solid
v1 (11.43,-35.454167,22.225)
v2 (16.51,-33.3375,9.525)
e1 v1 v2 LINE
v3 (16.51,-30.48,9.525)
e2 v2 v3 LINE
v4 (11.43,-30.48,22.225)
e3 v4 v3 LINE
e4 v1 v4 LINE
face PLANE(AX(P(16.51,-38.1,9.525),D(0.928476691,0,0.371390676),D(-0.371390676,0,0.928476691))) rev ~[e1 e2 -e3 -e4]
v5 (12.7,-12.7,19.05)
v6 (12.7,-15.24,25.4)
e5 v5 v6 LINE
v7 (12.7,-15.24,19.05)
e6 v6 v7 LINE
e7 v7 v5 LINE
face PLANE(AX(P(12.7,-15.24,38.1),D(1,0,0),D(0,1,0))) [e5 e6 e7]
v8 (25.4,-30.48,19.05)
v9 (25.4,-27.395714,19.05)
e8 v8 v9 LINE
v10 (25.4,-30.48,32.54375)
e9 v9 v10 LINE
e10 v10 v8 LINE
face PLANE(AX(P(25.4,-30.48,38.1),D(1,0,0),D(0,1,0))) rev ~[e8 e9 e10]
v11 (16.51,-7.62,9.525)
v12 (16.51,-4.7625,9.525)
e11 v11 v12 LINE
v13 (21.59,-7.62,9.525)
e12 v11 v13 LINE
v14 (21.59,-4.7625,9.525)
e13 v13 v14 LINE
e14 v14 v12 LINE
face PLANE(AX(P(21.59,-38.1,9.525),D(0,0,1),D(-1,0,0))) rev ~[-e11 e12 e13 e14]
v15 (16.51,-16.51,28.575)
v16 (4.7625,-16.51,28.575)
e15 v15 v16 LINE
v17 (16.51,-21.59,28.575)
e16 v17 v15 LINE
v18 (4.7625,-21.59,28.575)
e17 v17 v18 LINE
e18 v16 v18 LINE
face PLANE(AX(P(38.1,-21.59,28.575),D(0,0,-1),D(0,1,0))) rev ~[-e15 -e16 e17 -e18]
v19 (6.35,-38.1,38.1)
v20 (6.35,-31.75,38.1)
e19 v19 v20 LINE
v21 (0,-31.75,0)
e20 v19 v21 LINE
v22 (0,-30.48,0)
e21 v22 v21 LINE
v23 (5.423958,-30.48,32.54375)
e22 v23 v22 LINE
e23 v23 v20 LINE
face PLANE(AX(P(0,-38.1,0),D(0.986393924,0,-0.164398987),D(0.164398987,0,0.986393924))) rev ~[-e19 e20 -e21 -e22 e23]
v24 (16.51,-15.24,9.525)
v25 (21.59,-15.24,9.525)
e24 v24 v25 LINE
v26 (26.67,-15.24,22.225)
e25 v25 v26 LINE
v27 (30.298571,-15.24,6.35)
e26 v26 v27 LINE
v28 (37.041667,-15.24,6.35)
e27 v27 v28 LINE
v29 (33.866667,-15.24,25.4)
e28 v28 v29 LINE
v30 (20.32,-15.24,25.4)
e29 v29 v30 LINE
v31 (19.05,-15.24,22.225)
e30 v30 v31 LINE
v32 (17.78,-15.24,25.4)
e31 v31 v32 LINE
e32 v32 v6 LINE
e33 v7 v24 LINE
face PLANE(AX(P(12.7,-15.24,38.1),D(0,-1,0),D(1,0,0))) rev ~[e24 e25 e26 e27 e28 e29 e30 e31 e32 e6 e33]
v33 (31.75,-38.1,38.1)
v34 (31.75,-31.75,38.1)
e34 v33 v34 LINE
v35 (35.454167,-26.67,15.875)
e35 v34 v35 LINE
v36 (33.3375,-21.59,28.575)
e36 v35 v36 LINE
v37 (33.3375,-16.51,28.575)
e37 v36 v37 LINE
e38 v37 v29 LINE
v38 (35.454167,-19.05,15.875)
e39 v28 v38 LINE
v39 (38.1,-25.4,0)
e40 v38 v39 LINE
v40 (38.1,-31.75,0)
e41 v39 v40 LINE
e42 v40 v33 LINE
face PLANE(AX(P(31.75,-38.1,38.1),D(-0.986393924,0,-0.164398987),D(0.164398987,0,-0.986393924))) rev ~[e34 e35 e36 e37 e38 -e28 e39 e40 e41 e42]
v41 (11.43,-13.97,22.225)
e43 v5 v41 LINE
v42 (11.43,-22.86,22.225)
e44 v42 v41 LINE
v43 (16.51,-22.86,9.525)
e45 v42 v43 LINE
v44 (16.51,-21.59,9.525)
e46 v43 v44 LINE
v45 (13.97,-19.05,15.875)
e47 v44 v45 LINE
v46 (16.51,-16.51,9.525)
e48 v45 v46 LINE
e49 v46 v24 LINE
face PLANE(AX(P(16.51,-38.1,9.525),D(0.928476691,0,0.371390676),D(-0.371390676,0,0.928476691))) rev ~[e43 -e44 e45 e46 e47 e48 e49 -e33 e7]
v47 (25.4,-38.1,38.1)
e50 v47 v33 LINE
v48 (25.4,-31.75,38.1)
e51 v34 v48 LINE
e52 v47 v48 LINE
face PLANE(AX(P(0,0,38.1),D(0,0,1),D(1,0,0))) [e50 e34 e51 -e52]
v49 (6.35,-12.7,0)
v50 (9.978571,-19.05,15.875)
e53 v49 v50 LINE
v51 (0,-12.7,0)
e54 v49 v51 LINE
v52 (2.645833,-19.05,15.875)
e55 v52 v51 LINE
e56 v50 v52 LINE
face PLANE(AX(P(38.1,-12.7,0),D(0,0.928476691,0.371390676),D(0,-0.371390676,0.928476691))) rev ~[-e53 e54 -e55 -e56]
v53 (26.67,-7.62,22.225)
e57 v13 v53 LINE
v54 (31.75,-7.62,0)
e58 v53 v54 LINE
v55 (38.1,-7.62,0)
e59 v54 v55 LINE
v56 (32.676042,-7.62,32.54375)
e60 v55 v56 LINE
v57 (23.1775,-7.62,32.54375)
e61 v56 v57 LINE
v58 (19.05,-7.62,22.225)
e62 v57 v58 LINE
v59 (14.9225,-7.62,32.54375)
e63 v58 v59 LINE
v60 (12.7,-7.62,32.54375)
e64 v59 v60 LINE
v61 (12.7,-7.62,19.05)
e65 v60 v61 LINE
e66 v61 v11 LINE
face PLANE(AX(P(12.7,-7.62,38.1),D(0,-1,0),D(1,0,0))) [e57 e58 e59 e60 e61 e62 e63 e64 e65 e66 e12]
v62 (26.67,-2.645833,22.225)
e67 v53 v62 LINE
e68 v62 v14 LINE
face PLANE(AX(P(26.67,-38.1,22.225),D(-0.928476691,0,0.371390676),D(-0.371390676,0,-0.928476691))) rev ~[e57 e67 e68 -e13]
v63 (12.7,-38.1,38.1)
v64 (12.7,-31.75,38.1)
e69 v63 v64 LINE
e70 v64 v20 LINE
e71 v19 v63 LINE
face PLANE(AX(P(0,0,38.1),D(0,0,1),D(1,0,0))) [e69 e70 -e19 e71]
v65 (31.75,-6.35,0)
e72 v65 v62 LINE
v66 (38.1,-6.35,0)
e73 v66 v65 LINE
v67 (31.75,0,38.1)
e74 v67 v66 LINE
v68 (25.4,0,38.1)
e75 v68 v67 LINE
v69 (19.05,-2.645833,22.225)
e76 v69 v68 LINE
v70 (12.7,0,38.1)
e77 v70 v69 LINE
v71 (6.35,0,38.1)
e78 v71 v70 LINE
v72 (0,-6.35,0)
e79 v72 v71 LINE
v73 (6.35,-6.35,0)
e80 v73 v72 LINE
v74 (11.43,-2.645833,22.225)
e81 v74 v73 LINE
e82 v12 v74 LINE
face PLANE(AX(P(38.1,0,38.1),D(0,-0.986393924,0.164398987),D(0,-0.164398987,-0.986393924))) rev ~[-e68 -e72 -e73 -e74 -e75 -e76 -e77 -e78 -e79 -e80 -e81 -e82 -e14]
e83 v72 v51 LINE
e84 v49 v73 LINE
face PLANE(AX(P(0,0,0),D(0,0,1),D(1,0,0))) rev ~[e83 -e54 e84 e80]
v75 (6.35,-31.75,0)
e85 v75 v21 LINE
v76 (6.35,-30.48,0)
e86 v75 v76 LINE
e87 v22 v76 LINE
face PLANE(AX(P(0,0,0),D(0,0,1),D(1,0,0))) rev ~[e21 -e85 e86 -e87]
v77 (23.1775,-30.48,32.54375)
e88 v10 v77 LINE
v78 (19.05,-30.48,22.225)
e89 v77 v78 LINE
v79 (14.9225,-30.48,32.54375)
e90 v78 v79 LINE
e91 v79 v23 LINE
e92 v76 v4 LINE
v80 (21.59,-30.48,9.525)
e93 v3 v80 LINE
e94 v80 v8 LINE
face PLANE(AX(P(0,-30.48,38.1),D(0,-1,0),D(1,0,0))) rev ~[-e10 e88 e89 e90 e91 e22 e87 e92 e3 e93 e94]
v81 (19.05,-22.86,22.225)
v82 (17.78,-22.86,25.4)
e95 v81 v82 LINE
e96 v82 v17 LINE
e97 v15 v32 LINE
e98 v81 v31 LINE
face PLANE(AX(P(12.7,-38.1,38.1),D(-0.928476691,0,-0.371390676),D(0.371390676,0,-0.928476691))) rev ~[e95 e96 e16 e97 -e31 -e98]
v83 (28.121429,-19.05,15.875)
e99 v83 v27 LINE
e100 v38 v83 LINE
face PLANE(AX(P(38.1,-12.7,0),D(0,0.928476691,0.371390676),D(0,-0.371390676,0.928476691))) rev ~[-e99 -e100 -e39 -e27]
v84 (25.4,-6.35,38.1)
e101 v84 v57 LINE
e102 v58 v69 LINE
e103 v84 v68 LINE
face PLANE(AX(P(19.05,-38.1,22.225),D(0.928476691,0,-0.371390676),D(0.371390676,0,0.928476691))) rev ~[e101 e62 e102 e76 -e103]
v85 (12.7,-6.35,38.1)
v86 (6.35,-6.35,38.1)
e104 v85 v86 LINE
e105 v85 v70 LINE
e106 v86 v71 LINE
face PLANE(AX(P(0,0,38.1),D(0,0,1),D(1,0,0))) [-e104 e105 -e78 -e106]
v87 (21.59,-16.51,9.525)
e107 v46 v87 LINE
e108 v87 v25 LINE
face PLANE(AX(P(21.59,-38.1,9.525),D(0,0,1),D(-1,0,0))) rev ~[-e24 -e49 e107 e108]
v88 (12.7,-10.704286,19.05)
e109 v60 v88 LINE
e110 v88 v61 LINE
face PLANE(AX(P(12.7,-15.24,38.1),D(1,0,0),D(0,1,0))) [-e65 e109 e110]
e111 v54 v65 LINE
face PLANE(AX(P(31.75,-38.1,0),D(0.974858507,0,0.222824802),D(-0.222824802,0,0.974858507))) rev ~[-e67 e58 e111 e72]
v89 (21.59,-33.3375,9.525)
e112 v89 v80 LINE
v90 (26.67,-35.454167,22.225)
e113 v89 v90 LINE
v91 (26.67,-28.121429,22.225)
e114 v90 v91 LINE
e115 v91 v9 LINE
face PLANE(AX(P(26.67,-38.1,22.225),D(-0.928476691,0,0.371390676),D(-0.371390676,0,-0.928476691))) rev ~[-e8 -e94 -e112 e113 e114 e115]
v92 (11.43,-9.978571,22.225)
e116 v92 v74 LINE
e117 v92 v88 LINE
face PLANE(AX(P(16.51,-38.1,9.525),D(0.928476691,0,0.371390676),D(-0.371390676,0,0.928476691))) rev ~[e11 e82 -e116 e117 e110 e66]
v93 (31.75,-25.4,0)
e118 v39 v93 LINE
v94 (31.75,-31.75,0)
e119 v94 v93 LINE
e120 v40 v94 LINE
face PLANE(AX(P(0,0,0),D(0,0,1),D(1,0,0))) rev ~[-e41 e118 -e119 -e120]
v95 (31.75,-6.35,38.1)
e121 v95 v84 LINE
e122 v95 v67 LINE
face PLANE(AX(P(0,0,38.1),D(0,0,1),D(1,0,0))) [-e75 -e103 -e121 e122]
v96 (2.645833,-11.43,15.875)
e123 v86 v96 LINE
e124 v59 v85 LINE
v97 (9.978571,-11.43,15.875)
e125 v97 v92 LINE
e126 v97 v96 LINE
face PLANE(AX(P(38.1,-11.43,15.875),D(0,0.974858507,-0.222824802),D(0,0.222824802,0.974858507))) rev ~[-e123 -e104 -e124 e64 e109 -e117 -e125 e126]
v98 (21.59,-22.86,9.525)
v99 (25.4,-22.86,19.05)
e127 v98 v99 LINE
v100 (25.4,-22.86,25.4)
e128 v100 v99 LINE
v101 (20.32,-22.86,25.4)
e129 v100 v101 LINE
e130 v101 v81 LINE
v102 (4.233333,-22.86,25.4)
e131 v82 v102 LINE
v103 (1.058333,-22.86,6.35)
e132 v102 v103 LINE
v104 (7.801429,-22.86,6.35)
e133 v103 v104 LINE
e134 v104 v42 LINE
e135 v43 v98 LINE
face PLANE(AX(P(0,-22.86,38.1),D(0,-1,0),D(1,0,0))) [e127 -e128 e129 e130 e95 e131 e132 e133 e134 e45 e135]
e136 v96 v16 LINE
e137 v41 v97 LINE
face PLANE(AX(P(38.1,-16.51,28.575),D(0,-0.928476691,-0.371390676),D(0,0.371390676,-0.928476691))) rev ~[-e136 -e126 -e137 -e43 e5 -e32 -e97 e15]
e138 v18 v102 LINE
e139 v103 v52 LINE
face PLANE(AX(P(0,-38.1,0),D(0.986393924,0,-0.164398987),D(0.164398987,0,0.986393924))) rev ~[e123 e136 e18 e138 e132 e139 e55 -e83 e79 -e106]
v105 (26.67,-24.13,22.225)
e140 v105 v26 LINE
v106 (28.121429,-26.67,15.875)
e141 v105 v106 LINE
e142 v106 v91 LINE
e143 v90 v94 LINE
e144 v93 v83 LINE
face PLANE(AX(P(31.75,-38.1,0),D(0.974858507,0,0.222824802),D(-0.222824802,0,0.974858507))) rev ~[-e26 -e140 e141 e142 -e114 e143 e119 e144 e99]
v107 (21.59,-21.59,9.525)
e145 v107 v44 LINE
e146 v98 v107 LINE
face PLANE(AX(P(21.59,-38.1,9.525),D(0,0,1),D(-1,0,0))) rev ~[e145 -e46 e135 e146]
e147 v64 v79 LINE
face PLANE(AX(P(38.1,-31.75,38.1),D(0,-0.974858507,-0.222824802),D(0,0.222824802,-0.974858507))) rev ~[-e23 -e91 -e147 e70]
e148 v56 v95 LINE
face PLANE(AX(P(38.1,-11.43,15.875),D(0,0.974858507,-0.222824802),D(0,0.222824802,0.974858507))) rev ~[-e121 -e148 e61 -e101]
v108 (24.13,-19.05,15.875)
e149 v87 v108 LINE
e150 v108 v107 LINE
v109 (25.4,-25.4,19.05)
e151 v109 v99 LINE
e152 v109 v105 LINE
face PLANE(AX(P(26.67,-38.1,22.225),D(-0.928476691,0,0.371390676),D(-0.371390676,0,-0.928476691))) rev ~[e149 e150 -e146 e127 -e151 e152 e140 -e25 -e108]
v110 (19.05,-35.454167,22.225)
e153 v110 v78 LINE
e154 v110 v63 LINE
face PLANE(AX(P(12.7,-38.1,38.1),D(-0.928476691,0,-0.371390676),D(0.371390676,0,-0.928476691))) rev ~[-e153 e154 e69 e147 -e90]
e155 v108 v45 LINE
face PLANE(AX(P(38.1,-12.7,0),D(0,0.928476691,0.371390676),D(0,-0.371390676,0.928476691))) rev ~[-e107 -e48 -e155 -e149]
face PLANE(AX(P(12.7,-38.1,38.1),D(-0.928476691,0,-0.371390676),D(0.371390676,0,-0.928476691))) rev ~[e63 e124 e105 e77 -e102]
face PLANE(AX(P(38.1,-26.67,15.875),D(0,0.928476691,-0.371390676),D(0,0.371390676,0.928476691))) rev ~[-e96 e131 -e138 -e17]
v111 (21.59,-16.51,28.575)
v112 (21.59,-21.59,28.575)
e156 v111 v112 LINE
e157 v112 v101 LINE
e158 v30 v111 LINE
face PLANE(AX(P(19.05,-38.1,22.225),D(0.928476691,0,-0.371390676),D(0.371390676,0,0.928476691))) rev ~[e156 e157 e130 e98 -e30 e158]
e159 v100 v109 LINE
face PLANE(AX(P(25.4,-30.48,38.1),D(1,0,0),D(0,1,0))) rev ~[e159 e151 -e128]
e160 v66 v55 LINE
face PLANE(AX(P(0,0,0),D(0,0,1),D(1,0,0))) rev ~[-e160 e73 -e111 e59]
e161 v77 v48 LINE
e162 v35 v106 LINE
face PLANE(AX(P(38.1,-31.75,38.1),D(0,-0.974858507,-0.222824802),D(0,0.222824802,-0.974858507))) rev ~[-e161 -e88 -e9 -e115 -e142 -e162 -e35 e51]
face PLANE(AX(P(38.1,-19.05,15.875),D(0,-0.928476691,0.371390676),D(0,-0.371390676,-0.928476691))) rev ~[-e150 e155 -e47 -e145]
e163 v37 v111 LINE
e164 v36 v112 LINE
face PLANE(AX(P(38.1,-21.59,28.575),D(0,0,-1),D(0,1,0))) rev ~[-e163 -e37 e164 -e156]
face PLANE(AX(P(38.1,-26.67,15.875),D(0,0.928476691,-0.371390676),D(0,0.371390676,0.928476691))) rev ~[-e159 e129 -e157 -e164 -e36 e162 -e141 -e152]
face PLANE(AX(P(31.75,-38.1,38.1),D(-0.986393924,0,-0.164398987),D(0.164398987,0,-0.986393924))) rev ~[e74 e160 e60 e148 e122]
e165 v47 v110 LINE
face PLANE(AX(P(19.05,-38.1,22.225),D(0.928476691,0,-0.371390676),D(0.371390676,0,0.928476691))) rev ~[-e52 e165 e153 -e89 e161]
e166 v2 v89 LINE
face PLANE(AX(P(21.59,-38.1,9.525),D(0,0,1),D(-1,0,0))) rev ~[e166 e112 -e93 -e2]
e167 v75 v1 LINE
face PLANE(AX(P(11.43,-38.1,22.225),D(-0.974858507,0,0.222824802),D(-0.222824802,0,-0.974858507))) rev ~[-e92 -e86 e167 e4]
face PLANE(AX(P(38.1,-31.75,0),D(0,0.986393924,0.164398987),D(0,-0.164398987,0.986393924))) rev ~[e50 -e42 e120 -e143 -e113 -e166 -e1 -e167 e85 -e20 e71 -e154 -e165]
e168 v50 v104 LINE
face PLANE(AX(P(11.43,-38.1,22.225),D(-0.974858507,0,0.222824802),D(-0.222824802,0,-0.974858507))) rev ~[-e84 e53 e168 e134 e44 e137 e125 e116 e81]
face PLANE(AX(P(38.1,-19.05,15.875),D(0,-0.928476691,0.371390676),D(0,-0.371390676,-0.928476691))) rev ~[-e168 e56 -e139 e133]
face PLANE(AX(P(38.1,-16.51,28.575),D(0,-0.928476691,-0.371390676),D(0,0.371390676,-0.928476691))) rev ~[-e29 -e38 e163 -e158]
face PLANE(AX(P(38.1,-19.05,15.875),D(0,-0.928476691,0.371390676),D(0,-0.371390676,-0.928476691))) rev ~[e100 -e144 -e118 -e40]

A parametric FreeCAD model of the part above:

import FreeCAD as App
import Part
import Sketcher
from FreeCAD import Vector
Q = App.Units.Quantity

doc = App.newDocument("Part")
body = doc.addObject("PartDesign::Body", "Body")

# Sketch on XZ plane
sketch1 = doc.addObject("Sketcher::SketchObject", "Sketch")
body.addObject(sketch1)
sketch1.AttachmentSupport = (doc.XZ_Plane, [""])
sketch1.MapMode = "FlatFace"
sketch1.addGeometry([
    Part.LineSegment(Vector(0, 38, 0), Vector(0, 0, 0)),
    Part.LineSegment(Vector(0, 0, 0), Vector(38, 0, 0)),
    Part.LineSegment(Vector(38, 0, 0), Vector(38, 38, 0)),
    Part.LineSegment(Vector(38, 38, 0), Vector(0, 38, 0)),
], False)
sketch1.addConstraint([
    Sketcher.Constraint("Coincident", 0, 2, 1, 1),
    Sketcher.Constraint("Coincident", 1, 2, 2, 1),
    Sketcher.Constraint("Coincident", 2, 2, 3, 1),
    Sketcher.Constraint("Coincident", 3, 2, 0, 1),
    Sketcher.Constraint("Vertical", 0),
    Sketcher.Constraint("Horizontal", 1),
    Sketcher.Constraint("Vertical", 2),
    Sketcher.Constraint("Horizontal", 3),
    Sketcher.Constraint("Coincident", 0, 2, -1, 1),
    Sketcher.Constraint("Equal", 3, 0),
    Sketcher.Constraint("DistanceX", 1, 1, 1, 2, Q("1.5 in")),
])
pad1 = doc.addObject("PartDesign::Pad", "Pad")
body.addObject(pad1)
pad1.Profile = sketch1
pad1.Length = Q("1.5 in")

# Sketch on YZ plane
sketch2 = doc.addObject("Sketcher::SketchObject", "Sketch001")
body.addObject(sketch2)
sketch2.AttachmentSupport = (doc.YZ_Plane, [""])
sketch2.MapMode = "FlatFace"
sketch2.AttachmentOffset = App.Placement(Vector(0, 0, 1.5 * 25.4), App.Rotation())
sketch2.addGeometry([
    Part.LineSegment(Vector(-11, 16, 0), Vector(-6, 38, 0)),  # 0
    Part.LineSegment(Vector(-6, 38, 0), Vector(-32, 38, 0)),  # 1
    Part.LineSegment(Vector(-32, 38, 0), Vector(-27, 16, 0)),  # 2
    Part.LineSegment(Vector(-27, 16, 0), Vector(-22, 29, 0)),  # 3
    Part.LineSegment(Vector(-22, 29, 0), Vector(-17, 29, 0)),  # 4
    Part.LineSegment(Vector(-17, 29, 0), Vector(-11, 16, 0)),  # 5
    Part.LineSegment(Vector(-38, 0, 0), Vector(-32, 0, 0)),  # 6
    Part.LineSegment(Vector(-32, 0, 0), Vector(-38, 38, 0)),  # 7
    Part.LineSegment(Vector(-38, 38, 0), Vector(-38, 0, 0)),  # 8
    Part.LineSegment(Vector(-25, 0, 0), Vector(-13, 0, 0)),  # 9
    Part.LineSegment(Vector(-13, 0, 0), Vector(-19, 16, 0)),  # 10
    Part.LineSegment(Vector(-19, 16, 0), Vector(-25, 0, 0)),  # 11
    Part.LineSegment(Vector(-6, 0, 0), Vector(0, 0, 0)),  # 12
    Part.LineSegment(Vector(0, 0, 0), Vector(0, 38, 0)),  # 13
    Part.LineSegment(Vector(0, 38, 0), Vector(-6, 0, 0)),  # 14
], False)
sketch2.addConstraint([
    Sketcher.Constraint("Coincident", 0, 2, 1, 1),
    Sketcher.Constraint("Coincident", 1, 2, 2, 1),
    Sketcher.Constraint("Coincident", 2, 2, 3, 1),
    Sketcher.Constraint("Coincident", 3, 2, 4, 1),
    Sketcher.Constraint("Coincident", 4, 2, 5, 1),
    Sketcher.Constraint("Coincident", 5, 2, 0, 1),
    Sketcher.Constraint("Coincident", 6, 2, 7, 1),
    Sketcher.Constraint("Coincident", 7, 2, 8, 1),
    Sketcher.Constraint("Coincident", 8, 2, 6, 1),
    Sketcher.Constraint("Coincident", 9, 2, 10, 1),
    Sketcher.Constraint("Coincident", 10, 2, 11, 1),
    Sketcher.Constraint("Coincident", 11, 2, 9, 1),
    Sketcher.Constraint("Coincident", 12, 2, 13, 1),
    Sketcher.Constraint("Coincident", 13, 2, 14, 1),
    Sketcher.Constraint("Coincident", 14, 2, 12, 1),
    Sketcher.Constraint("Horizontal", 1),
    Sketcher.Constraint("Horizontal", 4),
    Sketcher.Constraint("Horizontal", 6),
    Sketcher.Constraint("Vertical", 8),
    Sketcher.Constraint("Horizontal", 9),
    Sketcher.Constraint("Horizontal", 12),
    Sketcher.Constraint("Vertical", 13),
    Sketcher.Constraint("Coincident", 12, 2, -1, 1),
    Sketcher.Constraint("PointOnObject", 6, 2, -1),
    Sketcher.Constraint("PointOnObject", 9, 2, -1),
    Sketcher.Constraint("Parallel", 5, 10),
    Sketcher.Constraint("Parallel", 3, 11),
    Sketcher.Constraint("Horizontal", 2, 2, 5, 2),
    Sketcher.Constraint("Horizontal", 1, 2, 7, 2),
    Sketcher.Constraint("Horizontal", 5, 2, 10, 2),
    Sketcher.Constraint("Horizontal", 7, 2, 13, 2),
    Sketcher.Constraint("Vertical", 1, 2, 6, 2),
    Sketcher.Constraint("Vertical", 0, 2, 14, 2),
    Sketcher.Constraint("Equal", 6, 12),
    Sketcher.Constraint("Equal", 0, 2),
    Sketcher.Constraint("Equal", 3, 5),
    Sketcher.Constraint("DistanceX", 1, 2, 1, 1, Q("1 in")),
    Sketcher.Constraint("DistanceX", 4, 1, 4, 2, Q("0.2 in")),
    Sketcher.Constraint("DistanceX", 9, 1, 9, 2, Q("0.5 in")),
    Sketcher.Constraint("DistanceY", 8, 2, 8, 1, Q("1.5 in")),
    Sketcher.Constraint("DistanceX", 11, 2, -1, 1, Q("1 in")),
    Sketcher.Constraint("DistanceX", 8, 2, 9, 2, Q("1 in")),
    Sketcher.Constraint("DistanceX", 1, 2, 2, 2, Q("0.2 in")),
    Sketcher.Constraint("DistanceY", 2, 2, 3, 2, Q("0.5 in")),
])
pocket1 = doc.addObject("PartDesign::Pocket", "Pocket")
body.addObject(pocket1)
pocket1.Profile = sketch2
pocket1.Length = Q("1.5 in")

# Sketch on XZ plane
sketch3 = doc.addObject("Sketcher::SketchObject", "Sketch002")
body.addObject(sketch3)
sketch3.AttachmentSupport = (doc.XZ_Plane, [""])
sketch3.MapMode = "FlatFace"
sketch3.AttachmentOffset = App.Placement(Vector(0, 0, 1.5 * 25.4), App.Rotation())
sketch3.addGeometry([
    Part.LineSegment(Vector(0, 38, 0), Vector(0, 0, 0)),  # 0
    Part.LineSegment(Vector(0, 0, 0), Vector(6, 38, 0)),  # 1
    Part.LineSegment(Vector(6, 38, 0), Vector(0, 38, 0)),  # 2
    Part.LineSegment(Vector(25, 38, 0), Vector(13, 38, 0)),  # 3
    Part.LineSegment(Vector(13, 38, 0), Vector(19, 22, 0)),  # 4
    Part.LineSegment(Vector(19, 22, 0), Vector(25, 38, 0)),  # 5
    Part.LineSegment(Vector(32, 38, 0), Vector(38, 0, 0)),  # 6
    Part.LineSegment(Vector(38, 0, 0), Vector(38, 38, 0)),  # 7
    Part.LineSegment(Vector(38, 38, 0), Vector(32, 38, 0)),  # 8
    Part.LineSegment(Vector(11, 22, 0), Vector(6, 0, 0)),  # 9
    Part.LineSegment(Vector(6, 0, 0), Vector(32, 0, 0)),  # 10
    Part.LineSegment(Vector(32, 0, 0), Vector(27, 22, 0)),  # 11
    Part.LineSegment(Vector(27, 22, 0), Vector(22, 10, 0)),  # 12
    Part.LineSegment(Vector(22, 10, 0), Vector(17, 10, 0)),  # 13
    Part.LineSegment(Vector(17, 10, 0), Vector(11, 22, 0)),  # 14
], False)
sketch3.addConstraint([
    Sketcher.Constraint("Coincident", 0, 2, 1, 1),
    Sketcher.Constraint("Coincident", 1, 2, 2, 1),
    Sketcher.Constraint("Coincident", 2, 2, 0, 1),
    Sketcher.Constraint("Coincident", 3, 2, 4, 1),
    Sketcher.Constraint("Coincident", 4, 2, 5, 1),
    Sketcher.Constraint("Coincident", 5, 2, 3, 1),
    Sketcher.Constraint("Coincident", 6, 2, 7, 1),
    Sketcher.Constraint("Coincident", 7, 2, 8, 1),
    Sketcher.Constraint("Coincident", 8, 2, 6, 1),
    Sketcher.Constraint("Coincident", 9, 2, 10, 1),
    Sketcher.Constraint("Coincident", 10, 2, 11, 1),
    Sketcher.Constraint("Coincident", 11, 2, 12, 1),
    Sketcher.Constraint("Coincident", 12, 2, 13, 1),
    Sketcher.Constraint("Coincident", 13, 2, 14, 1),
    Sketcher.Constraint("Coincident", 14, 2, 9, 1),
    Sketcher.Constraint("Vertical", 0),
    Sketcher.Constraint("Horizontal", 2),
    Sketcher.Constraint("Horizontal", 3),
    Sketcher.Constraint("Vertical", 7),
    Sketcher.Constraint("Horizontal", 8),
    Sketcher.Constraint("Horizontal", 10),
    Sketcher.Constraint("Horizontal", 13),
    Sketcher.Constraint("Coincident", 0, 2, -1, 1),
    Sketcher.Constraint("PointOnObject", 6, 2, -1),
    Sketcher.Constraint("PointOnObject", 9, 2, -1),
    Sketcher.Constraint("Parallel", 5, 12),
    Sketcher.Constraint("Parallel", 4, 14),
    Sketcher.Constraint("Horizontal", 2, 2, 3, 2),
    Sketcher.Constraint("Horizontal", 5, 2, 7, 2),
    Sketcher.Constraint("Horizontal", 4, 2, 11, 2),
    Sketcher.Constraint("Horizontal", 11, 2, 14, 2),
    Sketcher.Constraint("Vertical", 1, 2, 9, 2),
    Sketcher.Constraint("Vertical", 8, 2, 10, 2),
    Sketcher.Constraint("Equal", 2, 8),
    Sketcher.Constraint("Equal", 4, 5),
    Sketcher.Constraint("Equal", 9, 11),
    Sketcher.Constraint("DistanceX", 10, 1, 10, 2, Q("1 in")),
    Sketcher.Constraint("DistanceX", 3, 2, 3, 1, Q("0.5 in")),
    Sketcher.Constraint("DistanceX", 13, 2, 13, 1, Q("0.2 in")),
    Sketcher.Constraint("DistanceY", 0, 2, 0, 1, Q("1.5 in")),
    Sketcher.Constraint("DistanceX", -1, 1, 5, 2, Q("1 in")),
    Sketcher.Constraint("DistanceX", 3, 2, 6, 2, Q("1 in")),
    Sketcher.Constraint("DistanceX", 4, 2, 11, 2, Q("0.3 in")),
    Sketcher.Constraint("DistanceY", 12, 2, 4, 2, Q("0.5 in")),
])
pocket2 = doc.addObject("PartDesign::Pocket", "Pocket001")
body.addObject(pocket2)
pocket2.Profile = sketch3
pocket2.Length = Q("1.5 in")

# Sketch on XY plane
sketch4 = doc.addObject("Sketcher::SketchObject", "Sketch003")
body.addObject(sketch4)
sketch4.AttachmentSupport = (doc.XY_Plane, [""])
sketch4.MapMode = "FlatFace"
sketch4.AttachmentOffset = App.Placement(Vector(0, 0, 1.5 * 25.4), App.Rotation())
sketch4.addGeometry([
    Part.LineSegment(Vector(13, -8, 0), Vector(13, -15, 0)),  # 0
    Part.LineSegment(Vector(13, -15, 0), Vector(38, -15, 0)),  # 1
    Part.LineSegment(Vector(38, -15, 0), Vector(38, -8, 0)),  # 2
    Part.LineSegment(Vector(38, -8, 0), Vector(13, -8, 0)),  # 3
    Part.LineSegment(Vector(0, -23, 0), Vector(0, -30, 0)),  # 4
    Part.LineSegment(Vector(0, -30, 0), Vector(25, -30, 0)),  # 5
    Part.LineSegment(Vector(25, -30, 0), Vector(25, -23, 0)),  # 6
    Part.LineSegment(Vector(25, -23, 0), Vector(0, -23, 0)),  # 7
], False)
sketch4.addConstraint([
    Sketcher.Constraint("Coincident", 0, 2, 1, 1),
    Sketcher.Constraint("Coincident", 1, 2, 2, 1),
    Sketcher.Constraint("Coincident", 2, 2, 3, 1),
    Sketcher.Constraint("Coincident", 3, 2, 0, 1),
    Sketcher.Constraint("Coincident", 4, 2, 5, 1),
    Sketcher.Constraint("Coincident", 5, 2, 6, 1),
    Sketcher.Constraint("Coincident", 6, 2, 7, 1),
    Sketcher.Constraint("Coincident", 7, 2, 4, 1),
    Sketcher.Constraint("Vertical", 0),
    Sketcher.Constraint("Horizontal", 1),
    Sketcher.Constraint("Vertical", 2),
    Sketcher.Constraint("Horizontal", 3),
    Sketcher.Constraint("Vertical", 4),
    Sketcher.Constraint("Horizontal", 5),
    Sketcher.Constraint("Vertical", 6),
    Sketcher.Constraint("Horizontal", 7),
    Sketcher.Constraint("PointOnObject", 4, 2, -2),
    Sketcher.Constraint("Equal", 3, 5),
    Sketcher.Constraint("Equal", 2, 4),
    Sketcher.Constraint("DistanceX", 1, 1, 1, 2, Q("1 in")),
    Sketcher.Constraint("DistanceY", 0, 2, 0, 1, Q("0.3 in")),
    Sketcher.Constraint("DistanceX", -1, 1, 0, 2, Q("0.5 in")),
    Sketcher.Constraint("DistanceY", 0, 2, -1, 1, Q("0.6 in")),
    Sketcher.Constraint("DistanceY", 4, 2, -1, 1, Q("1.2 in")),
])
pocket3 = doc.addObject("PartDesign::Pocket", "Pocket002")
body.addObject(pocket3)
pocket3.Profile = sketch4
pocket3.Length = Q("1.5 in")

doc.recompute()
